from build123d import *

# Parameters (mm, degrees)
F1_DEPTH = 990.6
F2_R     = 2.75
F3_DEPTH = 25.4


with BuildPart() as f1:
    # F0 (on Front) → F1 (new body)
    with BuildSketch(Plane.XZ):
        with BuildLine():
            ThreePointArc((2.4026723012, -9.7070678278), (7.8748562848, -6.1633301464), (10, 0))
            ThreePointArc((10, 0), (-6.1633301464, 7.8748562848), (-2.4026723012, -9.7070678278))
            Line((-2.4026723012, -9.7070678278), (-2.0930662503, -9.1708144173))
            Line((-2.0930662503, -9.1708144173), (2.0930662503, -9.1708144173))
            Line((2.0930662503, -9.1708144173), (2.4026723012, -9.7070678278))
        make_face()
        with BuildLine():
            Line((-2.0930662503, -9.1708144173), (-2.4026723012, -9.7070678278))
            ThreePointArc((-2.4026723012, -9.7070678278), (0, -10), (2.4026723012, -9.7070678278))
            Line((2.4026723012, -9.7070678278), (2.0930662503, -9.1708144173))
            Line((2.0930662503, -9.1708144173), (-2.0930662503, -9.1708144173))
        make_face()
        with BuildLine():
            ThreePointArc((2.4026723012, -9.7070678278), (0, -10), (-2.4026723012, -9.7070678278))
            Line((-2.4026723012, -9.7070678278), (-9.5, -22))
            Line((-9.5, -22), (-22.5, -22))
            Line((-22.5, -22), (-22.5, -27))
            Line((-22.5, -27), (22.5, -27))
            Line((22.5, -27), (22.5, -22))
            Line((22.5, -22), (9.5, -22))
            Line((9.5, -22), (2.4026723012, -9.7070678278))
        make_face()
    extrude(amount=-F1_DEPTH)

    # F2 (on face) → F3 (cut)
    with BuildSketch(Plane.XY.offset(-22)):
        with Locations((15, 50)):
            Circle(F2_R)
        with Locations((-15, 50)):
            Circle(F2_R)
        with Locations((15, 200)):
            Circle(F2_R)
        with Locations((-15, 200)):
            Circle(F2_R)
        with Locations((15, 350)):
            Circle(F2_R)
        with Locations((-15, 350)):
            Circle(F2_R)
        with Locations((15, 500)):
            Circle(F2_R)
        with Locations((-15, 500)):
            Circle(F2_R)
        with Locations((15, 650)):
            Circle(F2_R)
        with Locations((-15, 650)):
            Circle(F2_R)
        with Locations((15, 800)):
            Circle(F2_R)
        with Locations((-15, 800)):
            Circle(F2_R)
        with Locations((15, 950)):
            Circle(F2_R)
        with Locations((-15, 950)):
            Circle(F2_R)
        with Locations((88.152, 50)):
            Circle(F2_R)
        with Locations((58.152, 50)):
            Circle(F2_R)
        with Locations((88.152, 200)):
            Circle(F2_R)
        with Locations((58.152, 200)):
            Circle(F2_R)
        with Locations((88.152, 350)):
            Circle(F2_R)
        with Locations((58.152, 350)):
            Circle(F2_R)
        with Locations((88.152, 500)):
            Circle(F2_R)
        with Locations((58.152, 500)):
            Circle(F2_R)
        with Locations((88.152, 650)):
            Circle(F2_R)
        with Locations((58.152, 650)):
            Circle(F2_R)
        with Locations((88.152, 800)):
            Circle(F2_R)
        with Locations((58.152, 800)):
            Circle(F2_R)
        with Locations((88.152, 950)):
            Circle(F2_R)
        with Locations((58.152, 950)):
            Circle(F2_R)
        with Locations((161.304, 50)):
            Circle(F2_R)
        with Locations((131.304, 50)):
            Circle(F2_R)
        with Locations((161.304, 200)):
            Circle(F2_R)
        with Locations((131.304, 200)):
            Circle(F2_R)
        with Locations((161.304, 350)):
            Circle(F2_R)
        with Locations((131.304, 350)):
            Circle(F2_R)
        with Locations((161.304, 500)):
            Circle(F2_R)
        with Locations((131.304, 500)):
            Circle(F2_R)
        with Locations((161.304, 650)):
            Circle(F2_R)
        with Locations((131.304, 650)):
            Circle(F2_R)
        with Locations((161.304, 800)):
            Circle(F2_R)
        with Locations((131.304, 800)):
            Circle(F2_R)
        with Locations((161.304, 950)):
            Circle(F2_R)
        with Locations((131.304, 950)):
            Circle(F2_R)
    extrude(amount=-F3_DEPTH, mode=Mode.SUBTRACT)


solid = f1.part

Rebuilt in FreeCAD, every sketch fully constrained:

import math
import FreeCAD as App
import Part
import Sketcher
Q = App.Units.Quantity

doc = App.newDocument("Part")
params = doc.addObject("Spreadsheet::Sheet", "Params")
for row, (alias, value) in enumerate([
    ("sketch1_radius", "10 mm"),
    ("sketch1_width", "13 mm"),
    ("sketch1_width2", "45 mm"),
    ("sketch1_height", "5 mm"),
    ("pad1_length", "990.6 mm"),
    ("sketch2_diameter", "5.5 mm"),
    ("pocket1_length", "25.4 mm"),
], start=1):
    params.set(f"A{row}", alias)
    params.set(f"B{row}", "=" + value)
    params.setAlias(f"B{row}", alias)

body = doc.addObject("PartDesign::Body", "Body")

sketch1 = body.newObject("Sketcher::SketchObject", "Sketch")
sketch1.AttachmentSupport = (doc.getObject("XZ_Plane"), [""])
sketch1.MapMode = "FlatFace"
sketch1.addGeometry(Part.ArcOfCircle(Part.Circle(App.Vector(0, 0, 0), App.Vector(0, 0, 1), 10), math.radians(-76), math.radians(0)), False)
sketch1.addGeometry(Part.ArcOfCircle(Part.Circle(App.Vector(0, 0, 0), App.Vector(0, 0, 1), 10), math.radians(0), math.radians(256)), False)
sketch1.addGeometry(Part.LineSegment(App.Vector(-2, -10, 0), App.Vector(-10, -22, 0)), False)
sketch1.addGeometry(Part.LineSegment(App.Vector(-10, -22, 0), App.Vector(-22, -22, 0)), False)
sketch1.addGeometry(Part.LineSegment(App.Vector(-22, -22, 0), App.Vector(-22, -27, 0)), False)
sketch1.addGeometry(Part.LineSegment(App.Vector(-22, -27, 0), App.Vector(22, -27, 0)), False)
sketch1.addGeometry(Part.LineSegment(App.Vector(22, -27, 0), App.Vector(22, -22, 0)), False)
sketch1.addGeometry(Part.LineSegment(App.Vector(22, -22, 0), App.Vector(10, -22, 0)), False)
sketch1.addGeometry(Part.LineSegment(App.Vector(10, -22, 0), App.Vector(2, -10, 0)), False)
sketch1.addConstraint(Sketcher.Constraint("Tangent", 0, 2, 1, 1))
sketch1.addConstraint(Sketcher.Constraint("Coincident", 1, 2, 2, 1))
sketch1.addConstraint(Sketcher.Constraint("Coincident", 2, 2, 3, 1))
sketch1.addConstraint(Sketcher.Constraint("Coincident", 3, 2, 4, 1))
sketch1.addConstraint(Sketcher.Constraint("Coincident", 4, 2, 5, 1))
sketch1.addConstraint(Sketcher.Constraint("Coincident", 5, 2, 6, 1))
sketch1.addConstraint(Sketcher.Constraint("Coincident", 6, 2, 7, 1))
sketch1.addConstraint(Sketcher.Constraint("Coincident", 7, 2, 8, 1))
sketch1.addConstraint(Sketcher.Constraint("Coincident", 8, 2, 0, 1))
sketch1.addConstraint(Sketcher.Constraint("Horizontal", 3))
sketch1.addConstraint(Sketcher.Constraint("Vertical", 4))
sketch1.addConstraint(Sketcher.Constraint("Horizontal", 5))
sketch1.addConstraint(Sketcher.Constraint("Vertical", 6))
sketch1.addConstraint(Sketcher.Constraint("Horizontal", 7))
sketch1.addConstraint(Sketcher.Constraint("Coincident", 0, 3, -1, 1))
sketch1.addConstraint(Sketcher.Constraint("Equal", 0, 1))
sketch1.addConstraint(Sketcher.Constraint("Symmetric", 3, 2, 6, 2, -2))
sketch1.addConstraint(Sketcher.Constraint("PointOnObject", 0, 2, -1))
sketch1.addConstraint(Sketcher.Constraint("Horizontal", 1, 2, 8, 2))
sketch1.addConstraint(Sketcher.Constraint("Equal", 3, 7))
sketch1.addConstraint(Sketcher.Constraint("Radius", 0, 10.0))
sketch1.addConstraint(Sketcher.Constraint("DistanceX", 3, 2, 3, 1, 13.0))
sketch1.addConstraint(Sketcher.Constraint("DistanceX", 5, 1, 5, 2, 45.0))
sketch1.addConstraint(Sketcher.Constraint("DistanceY", 4, 2, 4, 1, 5.0))
sketch1.addConstraint(Sketcher.Constraint("Angle", 2, Q("-120 deg")))
sketch1.addConstraint(Sketcher.Constraint("DistanceY", 2, 2, -1, 1, 22.0))
sketch1.setExpression("Constraints[20]", "Params.sketch1_radius")
sketch1.setExpression("Constraints[21]", "Params.sketch1_width")
sketch1.setExpression("Constraints[22]", "Params.sketch1_width2")
sketch1.setExpression("Constraints[23]", "Params.sketch1_height")
pad1 = body.newObject("PartDesign::Pad", "Pad")
pad1.Profile = sketch1
pad1.setExpression("Length", "Params.pad1_length")
pad1.Reversed = True

sketch2 = body.newObject("Sketcher::SketchObject", "Sketch001")
sketch2.AttachmentSupport = (doc.getObject("XY_Plane"), [""])
sketch2.MapMode = "FlatFace"
sketch2.AttachmentOffset = App.Placement(App.Vector(0, 0, -22), App.Rotation())
sketch2.addGeometry(Part.Circle(App.Vector(15, 50, 0), App.Vector(0, 0, 1), 2.8), False)
sketch2.addGeometry(Part.Circle(App.Vector(-15, 50, 0), App.Vector(0, 0, 1), 2.8), False)
sketch2.addGeometry(Part.Circle(App.Vector(15, 200, 0), App.Vector(0, 0, 1), 2.8), False)
sketch2.addGeometry(Part.Circle(App.Vector(-15, 200, 0), App.Vector(0, 0, 1), 2.8), False)
sketch2.addGeometry(Part.Circle(App.Vector(15, 350, 0), App.Vector(0, 0, 1), 2.8), False)
sketch2.addGeometry(Part.Circle(App.Vector(-15, 350, 0), App.Vector(0, 0, 1), 2.8), False)
sketch2.addGeometry(Part.Circle(App.Vector(15, 500, 0), App.Vector(0, 0, 1), 2.8), False)
sketch2.addGeometry(Part.Circle(App.Vector(-15, 500, 0), App.Vector(0, 0, 1), 2.8), False)
sketch2.addGeometry(Part.Circle(App.Vector(15, 650, 0), App.Vector(0, 0, 1), 2.8), False)
sketch2.addGeometry(Part.Circle(App.Vector(-15, 650, 0), App.Vector(0, 0, 1), 2.8), False)
sketch2.addGeometry(Part.Circle(App.Vector(15, 800, 0), App.Vector(0, 0, 1), 2.8), False)
sketch2.addGeometry(Part.Circle(App.Vector(-15, 800, 0), App.Vector(0, 0, 1), 2.8), False)
sketch2.addGeometry(Part.Circle(App.Vector(15, 950, 0), App.Vector(0, 0, 1), 2.8), False)
sketch2.addGeometry(Part.Circle(App.Vector(-15, 950, 0), App.Vector(0, 0, 1), 2.8), False)
sketch2.addGeometry(Part.Circle(App.Vector(88.2, 50, 0), App.Vector(0, 0, 1), 2.8), False)
sketch2.addGeometry(Part.Circle(App.Vector(58.2, 50, 0), App.Vector(0, 0, 1), 2.8), False)
sketch2.addGeometry(Part.Circle(App.Vector(88.2, 200, 0), App.Vector(0, 0, 1), 2.8), False)
sketch2.addGeometry(Part.Circle(App.Vector(58.2, 200, 0), App.Vector(0, 0, 1), 2.8), False)
sketch2.addGeometry(Part.Circle(App.Vector(88.2, 350, 0), App.Vector(0, 0, 1), 2.8), False)
sketch2.addGeometry(Part.Circle(App.Vector(58.2, 350, 0), App.Vector(0, 0, 1), 2.8), False)
sketch2.addGeometry(Part.Circle(App.Vector(88.2, 500, 0), App.Vector(0, 0, 1), 2.8), False)
sketch2.addGeometry(Part.Circle(App.Vector(58.2, 500, 0), App.Vector(0, 0, 1), 2.8), False)
sketch2.addGeometry(Part.Circle(App.Vector(88.2, 650, 0), App.Vector(0, 0, 1), 2.8), False)
sketch2.addGeometry(Part.Circle(App.Vector(58.2, 650, 0), App.Vector(0, 0, 1), 2.8), False)
sketch2.addGeometry(Part.Circle(App.Vector(88.2, 800, 0), App.Vector(0, 0, 1), 2.8), False)
sketch2.addGeometry(Part.Circle(App.Vector(58.2, 800, 0), App.Vector(0, 0, 1), 2.8), False)
sketch2.addGeometry(Part.Circle(App.Vector(88.2, 950, 0), App.Vector(0, 0, 1), 2.8), False)
sketch2.addGeometry(Part.Circle(App.Vector(58.2, 950, 0), App.Vector(0, 0, 1), 2.8), False)
sketch2.addGeometry(Part.Circle(App.Vector(161.3, 50, 0), App.Vector(0, 0, 1), 2.8), False)
sketch2.addGeometry(Part.Circle(App.Vector(131.3, 50, 0), App.Vector(0, 0, 1), 2.8), False)
sketch2.addGeometry(Part.Circle(App.Vector(161.3, 200, 0), App.Vector(0, 0, 1), 2.8), False)
sketch2.addGeometry(Part.Circle(App.Vector(131.3, 200, 0), App.Vector(0, 0, 1), 2.8), False)
sketch2.addGeometry(Part.Circle(App.Vector(161.3, 350, 0), App.Vector(0, 0, 1), 2.8), False)
sketch2.addGeometry(Part.Circle(App.Vector(131.3, 350, 0), App.Vector(0, 0, 1), 2.8), False)
sketch2.addGeometry(Part.Circle(App.Vector(161.3, 500, 0), App.Vector(0, 0, 1), 2.8), False)
sketch2.addGeometry(Part.Circle(App.Vector(131.3, 500, 0), App.Vector(0, 0, 1), 2.8), False)
sketch2.addGeometry(Part.Circle(App.Vector(161.3, 650, 0), App.Vector(0, 0, 1), 2.8), False)
sketch2.addGeometry(Part.Circle(App.Vector(131.3, 650, 0), App.Vector(0, 0, 1), 2.8), False)
sketch2.addGeometry(Part.Circle(App.Vector(161.3, 800, 0), App.Vector(0, 0, 1), 2.8), False)
sketch2.addGeometry(Part.Circle(App.Vector(131.3, 800, 0), App.Vector(0, 0, 1), 2.8), False)
sketch2.addGeometry(Part.Circle(App.Vector(161.3, 950, 0), App.Vector(0, 0, 1), 2.8), False)
sketch2.addGeometry(Part.Circle(App.Vector(131.3, 950, 0), App.Vector(0, 0, 1), 2.8), False)
sketch2.addConstraint(Sketcher.Constraint("Equal", 0, 1))
sketch2.addConstraint(Sketcher.Constraint("Equal", 1, 2))
sketch2.addConstraint(Sketcher.Constraint("Equal", 2, 3))
sketch2.addConstraint(Sketcher.Constraint("Equal", 3, 4))
sketch2.addConstraint(Sketcher.Constraint("Equal", 4, 5))
sketch2.addConstraint(Sketcher.Constraint("Equal", 5, 6))
sketch2.addConstraint(Sketcher.Constraint("Equal", 6, 7))
sketch2.addConstraint(Sketcher.Constraint("Equal", 7, 8))
sketch2.addConstraint(Sketcher.Constraint("Equal", 8, 9))
sketch2.addConstraint(Sketcher.Constraint("Equal", 9, 10))
sketch2.addConstraint(Sketcher.Constraint("Equal", 10, 11))
sketch2.addConstraint(Sketcher.Constraint("Equal", 11, 12))
sketch2.addConstraint(Sketcher.Constraint("Equal", 12, 13))
sketch2.addConstraint(Sketcher.Constraint("Equal", 13, 14))
sketch2.addConstraint(Sketcher.Constraint("Equal", 14, 15))
sketch2.addConstraint(Sketcher.Constraint("Equal", 15, 16))
sketch2.addConstraint(Sketcher.Constraint("Equal", 16, 17))
sketch2.addConstraint(Sketcher.Constraint("Equal", 17, 18))
sketch2.addConstraint(Sketcher.Constraint("Equal", 18, 19))
sketch2.addConstraint(Sketcher.Constraint("Equal", 19, 20))
sketch2.addConstraint(Sketcher.Constraint("Equal", 20, 21))
sketch2.addConstraint(Sketcher.Constraint("Equal", 21, 22))
sketch2.addConstraint(Sketcher.Constraint("Equal", 22, 23))
sketch2.addConstraint(Sketcher.Constraint("Equal", 23, 24))
sketch2.addConstraint(Sketcher.Constraint("Equal", 24, 25))
sketch2.addConstraint(Sketcher.Constraint("Equal", 25, 26))
sketch2.addConstraint(Sketcher.Constraint("Equal", 26, 27))
sketch2.addConstraint(Sketcher.Constraint("Equal", 27, 28))
sketch2.addConstraint(Sketcher.Constraint("Equal", 28, 29))
sketch2.addConstraint(Sketcher.Constraint("Equal", 29, 30))
sketch2.addConstraint(Sketcher.Constraint("Equal", 30, 31))
sketch2.addConstraint(Sketcher.Constraint("Equal", 31, 32))
sketch2.addConstraint(Sketcher.Constraint("Equal", 32, 33))
sketch2.addConstraint(Sketcher.Constraint("Equal", 33, 34))
sketch2.addConstraint(Sketcher.Constraint("Equal", 34, 35))
sketch2.addConstraint(Sketcher.Constraint("Equal", 35, 36))
sketch2.addConstraint(Sketcher.Constraint("Equal", 36, 37))
sketch2.addConstraint(Sketcher.Constraint("Equal", 37, 38))
sketch2.addConstraint(Sketcher.Constraint("Equal", 38, 39))
sketch2.addConstraint(Sketcher.Constraint("Equal", 39, 40))
sketch2.addConstraint(Sketcher.Constraint("Equal", 40, 41))
sketch2.addConstraint(Sketcher.Constraint("Symmetric", 0, 3, 1, 3, -2))
sketch2.addConstraint(Sketcher.Constraint("Symmetric", 2, 3, 3, 3, -2))
sketch2.addConstraint(Sketcher.Constraint("Symmetric", 4, 3, 5, 3, -2))
sketch2.addConstraint(Sketcher.Constraint("Symmetric", 6, 3, 7, 3, -2))
sketch2.addConstraint(Sketcher.Constraint("Symmetric", 8, 3, 9, 3, -2))
sketch2.addConstraint(Sketcher.Constraint("Symmetric", 10, 3, 11, 3, -2))
sketch2.addConstraint(Sketcher.Constraint("Symmetric", 12, 3, 13, 3, -2))
sketch2.addConstraint(Sketcher.Constraint("Horizontal", 1, 3, 14, 3))
sketch2.addConstraint(Sketcher.Constraint("Horizontal", 14, 3, 15, 3))
sketch2.addConstraint(Sketcher.Constraint("Horizontal", 3, 3, 16, 3))
sketch2.addConstraint(Sketcher.Constraint("Horizontal", 16, 3, 17, 3))
sketch2.addConstraint(Sketcher.Constraint("Horizontal", 5, 3, 18, 3))
sketch2.addConstraint(Sketcher.Constraint("Horizontal", 18, 3, 19, 3))
sketch2.addConstraint(Sketcher.Constraint("Horizontal", 7, 3, 20, 3))
sketch2.addConstraint(Sketcher.Constraint("Horizontal", 20, 3, 21, 3))
sketch2.addConstraint(Sketcher.Constraint("Horizontal", 9, 3, 22, 3))
sketch2.addConstraint(Sketcher.Constraint("Horizontal", 22, 3, 23, 3))
sketch2.addConstraint(Sketcher.Constraint("Horizontal", 11, 3, 24, 3))
sketch2.addConstraint(Sketcher.Constraint("Horizontal", 24, 3, 25, 3))
sketch2.addConstraint(Sketcher.Constraint("Horizontal", 13, 3, 26, 3))
sketch2.addConstraint(Sketcher.Constraint("Horizontal", 26, 3, 27, 3))
sketch2.addConstraint(Sketcher.Constraint("Horizontal", 15, 3, 28, 3))
sketch2.addConstraint(Sketcher.Constraint("Horizontal", 28, 3, 29, 3))
sketch2.addConstraint(Sketcher.Constraint("Horizontal", 17, 3, 30, 3))
sketch2.addConstraint(Sketcher.Constraint("Horizontal", 30, 3, 31, 3))
sketch2.addConstraint(Sketcher.Constraint("Horizontal", 19, 3, 32, 3))
sketch2.addConstraint(Sketcher.Constraint("Horizontal", 32, 3, 33, 3))
sketch2.addConstraint(Sketcher.Constraint("Horizontal", 21, 3, 34, 3))
sketch2.addConstraint(Sketcher.Constraint("Horizontal", 34, 3, 35, 3))
sketch2.addConstraint(Sketcher.Constraint("Horizontal", 23, 3, 36, 3))
sketch2.addConstraint(Sketcher.Constraint("Horizontal", 36, 3, 37, 3))
sketch2.addConstraint(Sketcher.Constraint("Horizontal", 25, 3, 38, 3))
sketch2.addConstraint(Sketcher.Constraint("Horizontal", 38, 3, 39, 3))
sketch2.addConstraint(Sketcher.Constraint("Horizontal", 27, 3, 40, 3))
sketch2.addConstraint(Sketcher.Constraint("Horizontal", 40, 3, 41, 3))
sketch2.addConstraint(Sketcher.Constraint("Vertical", 0, 3, 2, 3))
sketch2.addConstraint(Sketcher.Constraint("Vertical", 2, 3, 4, 3))
sketch2.addConstraint(Sketcher.Constraint("Vertical", 4, 3, 6, 3))
sketch2.addConstraint(Sketcher.Constraint("Vertical", 6, 3, 8, 3))
sketch2.addConstraint(Sketcher.Constraint("Vertical", 8, 3, 10, 3))
sketch2.addConstraint(Sketcher.Constraint("Vertical", 10, 3, 12, 3))
sketch2.addConstraint(Sketcher.Constraint("Vertical", 14, 3, 16, 3))
sketch2.addConstraint(Sketcher.Constraint("Vertical", 15, 3, 17, 3))
sketch2.addConstraint(Sketcher.Constraint("Vertical", 16, 3, 18, 3))
sketch2.addConstraint(Sketcher.Constraint("Vertical", 17, 3, 19, 3))
sketch2.addConstraint(Sketcher.Constraint("Vertical", 18, 3, 20, 3))
sketch2.addConstraint(Sketcher.Constraint("Vertical", 19, 3, 21, 3))
sketch2.addConstraint(Sketcher.Constraint("Vertical", 20, 3, 22, 3))
sketch2.addConstraint(Sketcher.Constraint("Vertical", 21, 3, 23, 3))
sketch2.addConstraint(Sketcher.Constraint("Vertical", 22, 3, 24, 3))
sketch2.addConstraint(Sketcher.Constraint("Vertical", 23, 3, 25, 3))
sketch2.addConstraint(Sketcher.Constraint("Vertical", 24, 3, 26, 3))
sketch2.addConstraint(Sketcher.Constraint("Vertical", 25, 3, 27, 3))
sketch2.addConstraint(Sketcher.Constraint("Vertical", 28, 3, 30, 3))
sketch2.addConstraint(Sketcher.Constraint("Vertical", 29, 3, 31, 3))
sketch2.addConstraint(Sketcher.Constraint("Vertical", 30, 3, 32, 3))
sketch2.addConstraint(Sketcher.Constraint("Vertical", 31, 3, 33, 3))
sketch2.addConstraint(Sketcher.Constraint("Vertical", 32, 3, 34, 3))
sketch2.addConstraint(Sketcher.Constraint("Vertical", 33, 3, 35, 3))
sketch2.addConstraint(Sketcher.Constraint("Vertical", 34, 3, 36, 3))
sketch2.addConstraint(Sketcher.Constraint("Vertical", 35, 3, 37, 3))
sketch2.addConstraint(Sketcher.Constraint("Vertical", 36, 3, 38, 3))
sketch2.addConstraint(Sketcher.Constraint("Vertical", 37, 3, 39, 3))
sketch2.addConstraint(Sketcher.Constraint("Vertical", 38, 3, 40, 3))
sketch2.addConstraint(Sketcher.Constraint("Vertical", 39, 3, 41, 3))
sketch2.addConstraint(Sketcher.Constraint("Diameter", 0, 5.5))
sketch2.addConstraint(Sketcher.Constraint("DistanceX", -1, 1, 0, 3, 15.0))
sketch2.addConstraint(Sketcher.Constraint("DistanceY", -1, 1, 0, 3, 50.0))
sketch2.addConstraint(Sketcher.Constraint("DistanceY", -1, 1, 2, 3, 200.0))
sketch2.addConstraint(Sketcher.Constraint("DistanceY", -1, 1, 4, 3, 350.0))
sketch2.addConstraint(Sketcher.Constraint("DistanceY", -1, 1, 6, 3, 500.0))
sketch2.addConstraint(Sketcher.Constraint("DistanceY", -1, 1, 8, 3, 650.0))
sketch2.addConstraint(Sketcher.Constraint("DistanceY", -1, 1, 10, 3, 800.0))
sketch2.addConstraint(Sketcher.Constraint("DistanceY", -1, 1, 12, 3, 950.0))
sketch2.addConstraint(Sketcher.Constraint("DistanceX", 15, 3, 14, 3, 30.0))
sketch2.addConstraint(Sketcher.Constraint("DistanceX", 29, 3, 28, 3, 30.0))
sketch2.addConstraint(Sketcher.Constraint("DistanceX", -1, 1, 14, 3, 88.152))
sketch2.addConstraint(Sketcher.Constraint("DistanceX", -1, 1, 28, 3, 161.304))
sketch2.setExpression("Constraints[106]", "Params.sketch2_diameter")
pocket1 = body.newObject("PartDesign::Pocket", "Pocket")
pocket1.Profile = sketch2
pocket1.setExpression("Length", "Params.pocket1_length")

doc.recompute()
